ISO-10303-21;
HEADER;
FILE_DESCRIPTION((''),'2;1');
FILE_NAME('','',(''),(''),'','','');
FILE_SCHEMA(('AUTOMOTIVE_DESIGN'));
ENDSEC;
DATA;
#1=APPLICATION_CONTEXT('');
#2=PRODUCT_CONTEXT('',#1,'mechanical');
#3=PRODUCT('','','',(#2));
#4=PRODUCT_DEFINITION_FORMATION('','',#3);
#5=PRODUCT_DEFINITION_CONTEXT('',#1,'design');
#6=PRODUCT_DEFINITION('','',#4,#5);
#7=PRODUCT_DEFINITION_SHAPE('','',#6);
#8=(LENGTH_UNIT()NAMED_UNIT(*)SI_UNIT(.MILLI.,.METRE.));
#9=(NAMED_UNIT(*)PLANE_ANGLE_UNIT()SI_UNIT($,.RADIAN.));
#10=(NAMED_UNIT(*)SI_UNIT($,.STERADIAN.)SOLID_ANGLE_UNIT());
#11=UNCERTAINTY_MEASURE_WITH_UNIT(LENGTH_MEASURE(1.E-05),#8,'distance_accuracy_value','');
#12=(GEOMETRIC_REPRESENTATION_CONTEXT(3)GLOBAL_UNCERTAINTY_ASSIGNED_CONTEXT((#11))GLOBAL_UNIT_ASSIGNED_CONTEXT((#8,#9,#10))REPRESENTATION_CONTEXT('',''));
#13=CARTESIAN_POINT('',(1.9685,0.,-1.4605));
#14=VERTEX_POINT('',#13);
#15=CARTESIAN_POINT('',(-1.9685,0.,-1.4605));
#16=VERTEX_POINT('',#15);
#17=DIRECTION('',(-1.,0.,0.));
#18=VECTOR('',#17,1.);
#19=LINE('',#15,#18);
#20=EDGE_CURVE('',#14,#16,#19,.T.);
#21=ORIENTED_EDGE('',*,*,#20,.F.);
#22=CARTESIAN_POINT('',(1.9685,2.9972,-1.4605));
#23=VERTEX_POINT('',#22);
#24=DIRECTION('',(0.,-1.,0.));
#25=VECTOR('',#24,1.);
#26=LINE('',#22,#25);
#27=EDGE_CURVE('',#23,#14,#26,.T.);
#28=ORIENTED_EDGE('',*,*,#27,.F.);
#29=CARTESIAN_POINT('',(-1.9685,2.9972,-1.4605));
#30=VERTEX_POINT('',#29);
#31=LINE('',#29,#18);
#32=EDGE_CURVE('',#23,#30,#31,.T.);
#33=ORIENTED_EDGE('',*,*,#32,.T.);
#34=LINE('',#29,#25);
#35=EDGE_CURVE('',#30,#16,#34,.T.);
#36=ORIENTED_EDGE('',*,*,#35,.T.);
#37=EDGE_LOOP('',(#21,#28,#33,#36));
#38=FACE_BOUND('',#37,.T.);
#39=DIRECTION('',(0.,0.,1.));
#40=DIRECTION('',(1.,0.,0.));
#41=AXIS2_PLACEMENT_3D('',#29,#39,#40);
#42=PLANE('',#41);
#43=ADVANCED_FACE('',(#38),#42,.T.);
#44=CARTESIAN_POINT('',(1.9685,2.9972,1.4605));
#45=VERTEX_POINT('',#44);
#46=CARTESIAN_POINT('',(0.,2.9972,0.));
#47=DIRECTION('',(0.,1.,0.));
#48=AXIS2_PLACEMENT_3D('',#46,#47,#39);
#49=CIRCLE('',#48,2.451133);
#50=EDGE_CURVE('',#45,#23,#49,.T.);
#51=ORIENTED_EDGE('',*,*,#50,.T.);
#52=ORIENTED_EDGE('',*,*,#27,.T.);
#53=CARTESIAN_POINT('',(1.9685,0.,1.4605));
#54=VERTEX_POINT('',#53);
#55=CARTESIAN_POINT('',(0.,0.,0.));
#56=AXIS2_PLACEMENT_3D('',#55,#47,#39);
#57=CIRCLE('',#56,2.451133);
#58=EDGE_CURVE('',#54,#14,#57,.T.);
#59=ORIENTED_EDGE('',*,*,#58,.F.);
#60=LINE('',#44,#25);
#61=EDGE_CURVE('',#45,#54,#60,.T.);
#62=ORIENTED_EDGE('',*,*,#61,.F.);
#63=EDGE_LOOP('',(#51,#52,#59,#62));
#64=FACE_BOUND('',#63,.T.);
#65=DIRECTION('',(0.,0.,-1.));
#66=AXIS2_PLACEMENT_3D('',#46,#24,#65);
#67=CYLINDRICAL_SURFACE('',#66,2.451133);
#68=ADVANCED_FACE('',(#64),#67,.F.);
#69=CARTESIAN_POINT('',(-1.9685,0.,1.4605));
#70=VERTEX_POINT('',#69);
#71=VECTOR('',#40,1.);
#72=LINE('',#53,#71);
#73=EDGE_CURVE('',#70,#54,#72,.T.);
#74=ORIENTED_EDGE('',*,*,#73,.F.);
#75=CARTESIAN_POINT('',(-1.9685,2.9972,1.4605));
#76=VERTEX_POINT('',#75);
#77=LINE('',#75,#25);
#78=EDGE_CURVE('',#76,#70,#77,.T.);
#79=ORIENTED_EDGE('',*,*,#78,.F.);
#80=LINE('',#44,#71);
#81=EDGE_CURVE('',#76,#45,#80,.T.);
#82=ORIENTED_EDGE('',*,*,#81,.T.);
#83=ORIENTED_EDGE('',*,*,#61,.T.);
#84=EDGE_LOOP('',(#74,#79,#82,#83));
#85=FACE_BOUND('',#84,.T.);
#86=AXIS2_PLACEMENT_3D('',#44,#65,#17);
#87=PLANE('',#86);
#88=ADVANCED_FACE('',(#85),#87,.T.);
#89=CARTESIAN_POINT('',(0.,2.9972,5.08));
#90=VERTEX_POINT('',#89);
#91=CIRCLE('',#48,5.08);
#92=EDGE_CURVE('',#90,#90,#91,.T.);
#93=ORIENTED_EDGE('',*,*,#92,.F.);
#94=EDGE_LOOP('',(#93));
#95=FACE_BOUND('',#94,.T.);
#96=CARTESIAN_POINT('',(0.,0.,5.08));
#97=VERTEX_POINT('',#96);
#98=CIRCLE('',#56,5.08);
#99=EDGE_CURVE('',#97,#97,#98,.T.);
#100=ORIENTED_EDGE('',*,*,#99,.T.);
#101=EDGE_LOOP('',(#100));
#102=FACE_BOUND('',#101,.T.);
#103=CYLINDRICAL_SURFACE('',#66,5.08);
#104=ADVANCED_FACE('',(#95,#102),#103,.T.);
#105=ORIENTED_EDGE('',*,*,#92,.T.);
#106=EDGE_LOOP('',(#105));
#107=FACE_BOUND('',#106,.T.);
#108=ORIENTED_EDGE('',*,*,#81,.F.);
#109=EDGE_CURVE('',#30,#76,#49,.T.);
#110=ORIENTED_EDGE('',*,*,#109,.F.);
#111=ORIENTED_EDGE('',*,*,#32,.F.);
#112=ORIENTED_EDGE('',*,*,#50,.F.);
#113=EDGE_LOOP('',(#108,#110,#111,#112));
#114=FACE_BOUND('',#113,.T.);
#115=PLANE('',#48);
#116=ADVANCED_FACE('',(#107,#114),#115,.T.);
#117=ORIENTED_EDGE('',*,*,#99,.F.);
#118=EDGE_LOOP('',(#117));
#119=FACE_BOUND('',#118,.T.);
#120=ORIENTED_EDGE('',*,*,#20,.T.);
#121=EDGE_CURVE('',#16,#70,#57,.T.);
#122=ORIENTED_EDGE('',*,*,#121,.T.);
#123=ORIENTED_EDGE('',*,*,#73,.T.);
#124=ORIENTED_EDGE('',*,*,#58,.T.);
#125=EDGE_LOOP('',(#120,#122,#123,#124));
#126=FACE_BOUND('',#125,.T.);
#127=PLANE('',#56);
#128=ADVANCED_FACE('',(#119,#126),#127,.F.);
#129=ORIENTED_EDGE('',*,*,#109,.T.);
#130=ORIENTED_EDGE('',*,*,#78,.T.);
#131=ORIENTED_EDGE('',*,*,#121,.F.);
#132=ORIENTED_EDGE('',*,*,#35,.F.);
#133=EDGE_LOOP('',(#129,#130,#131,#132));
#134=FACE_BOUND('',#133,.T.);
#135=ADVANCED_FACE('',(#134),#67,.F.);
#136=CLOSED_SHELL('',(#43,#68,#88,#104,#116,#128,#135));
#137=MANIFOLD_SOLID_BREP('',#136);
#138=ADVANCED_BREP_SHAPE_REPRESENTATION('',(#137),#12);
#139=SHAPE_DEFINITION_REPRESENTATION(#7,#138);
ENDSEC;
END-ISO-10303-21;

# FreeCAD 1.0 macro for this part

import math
import FreeCAD as App
import Part
import Sketcher
from FreeCAD import Vector
Q = App.Units.Quantity

doc = App.newDocument("Part")
params = doc.addObject("Spreadsheet::Sheet", "Params")
for row, (alias, value) in enumerate([
    ("sketch1_diameter", "0.4 in"),
    ("sketch1_width", "0.155 in"),
    ("pad1_length", "0.118 in"),
], start=1):
    params.set(f"A{row}", alias)
    params.set(f"B{row}", "=" + value)
    params.setAlias(f"B{row}", alias)

body = doc.addObject("PartDesign::Body", "Body")

sketch1 = doc.addObject("Sketcher::SketchObject", "Sketch")
body.addObject(sketch1)
sketch1.AttachmentSupport = (doc.XZ_Plane, [""])
sketch1.MapMode = "FlatFace"
sketch1.addGeometry([
    Part.Circle(Vector(0, 0, 0), Vector(0, 0, 1), 5.1),
    Part.ArcOfCircle(Part.Circle(Vector(0, 0, 0), Vector(0, 0, 1), 2.5), math.radians(143), math.radians(217)),
    Part.LineSegment(Vector(-2, -1.5, 0), Vector(2, -1.5, 0)),
    Part.ArcOfCircle(Part.Circle(Vector(0, 0, 0), Vector(0, 0, 1), 2.5), math.radians(-37), math.radians(37)),
    Part.LineSegment(Vector(2, 1.5, 0), Vector(-2, 1.5, 0)),
], False)
sketch1.addConstraint([
    Sketcher.Constraint("Coincident", 1, 2, 2, 1),
    Sketcher.Constraint("Coincident", 2, 2, 3, 1),
    Sketcher.Constraint("Coincident", 3, 2, 4, 1),
    Sketcher.Constraint("Coincident", 4, 2, 1, 1),
    Sketcher.Constraint("Horizontal", 2),
    Sketcher.Constraint("Horizontal", 4),
    Sketcher.Constraint("Coincident", 0, 3, -1, 1),
    Sketcher.Constraint("Coincident", 1, 3, -1, 1),
    Sketcher.Constraint("Coincident", 3, 3, -1, 1),
    Sketcher.Constraint("Equal", 1, 3),
    Sketcher.Constraint("Vertical", 2, 2, 3, 2),
    Sketcher.Constraint("Diameter", 0, Q("0.4 in")),
    Sketcher.Constraint("DistanceX", 2, 1, 2, 2, Q("0.155 in")),
    Sketcher.Constraint("DistanceY", 2, 2, 3, 2, Q("0.115 in")),
])
sketch1.setExpression("Constraints[11]", "Params.sketch1_diameter")
sketch1.setExpression("Constraints[12]", "Params.sketch1_width")
pad1 = doc.addObject("PartDesign::Pad", "Pad")
body.addObject(pad1)
pad1.Profile = sketch1
pad1.setExpression("Length", "Params.pad1_length")
pad1.Reversed = True

doc.recompute()
